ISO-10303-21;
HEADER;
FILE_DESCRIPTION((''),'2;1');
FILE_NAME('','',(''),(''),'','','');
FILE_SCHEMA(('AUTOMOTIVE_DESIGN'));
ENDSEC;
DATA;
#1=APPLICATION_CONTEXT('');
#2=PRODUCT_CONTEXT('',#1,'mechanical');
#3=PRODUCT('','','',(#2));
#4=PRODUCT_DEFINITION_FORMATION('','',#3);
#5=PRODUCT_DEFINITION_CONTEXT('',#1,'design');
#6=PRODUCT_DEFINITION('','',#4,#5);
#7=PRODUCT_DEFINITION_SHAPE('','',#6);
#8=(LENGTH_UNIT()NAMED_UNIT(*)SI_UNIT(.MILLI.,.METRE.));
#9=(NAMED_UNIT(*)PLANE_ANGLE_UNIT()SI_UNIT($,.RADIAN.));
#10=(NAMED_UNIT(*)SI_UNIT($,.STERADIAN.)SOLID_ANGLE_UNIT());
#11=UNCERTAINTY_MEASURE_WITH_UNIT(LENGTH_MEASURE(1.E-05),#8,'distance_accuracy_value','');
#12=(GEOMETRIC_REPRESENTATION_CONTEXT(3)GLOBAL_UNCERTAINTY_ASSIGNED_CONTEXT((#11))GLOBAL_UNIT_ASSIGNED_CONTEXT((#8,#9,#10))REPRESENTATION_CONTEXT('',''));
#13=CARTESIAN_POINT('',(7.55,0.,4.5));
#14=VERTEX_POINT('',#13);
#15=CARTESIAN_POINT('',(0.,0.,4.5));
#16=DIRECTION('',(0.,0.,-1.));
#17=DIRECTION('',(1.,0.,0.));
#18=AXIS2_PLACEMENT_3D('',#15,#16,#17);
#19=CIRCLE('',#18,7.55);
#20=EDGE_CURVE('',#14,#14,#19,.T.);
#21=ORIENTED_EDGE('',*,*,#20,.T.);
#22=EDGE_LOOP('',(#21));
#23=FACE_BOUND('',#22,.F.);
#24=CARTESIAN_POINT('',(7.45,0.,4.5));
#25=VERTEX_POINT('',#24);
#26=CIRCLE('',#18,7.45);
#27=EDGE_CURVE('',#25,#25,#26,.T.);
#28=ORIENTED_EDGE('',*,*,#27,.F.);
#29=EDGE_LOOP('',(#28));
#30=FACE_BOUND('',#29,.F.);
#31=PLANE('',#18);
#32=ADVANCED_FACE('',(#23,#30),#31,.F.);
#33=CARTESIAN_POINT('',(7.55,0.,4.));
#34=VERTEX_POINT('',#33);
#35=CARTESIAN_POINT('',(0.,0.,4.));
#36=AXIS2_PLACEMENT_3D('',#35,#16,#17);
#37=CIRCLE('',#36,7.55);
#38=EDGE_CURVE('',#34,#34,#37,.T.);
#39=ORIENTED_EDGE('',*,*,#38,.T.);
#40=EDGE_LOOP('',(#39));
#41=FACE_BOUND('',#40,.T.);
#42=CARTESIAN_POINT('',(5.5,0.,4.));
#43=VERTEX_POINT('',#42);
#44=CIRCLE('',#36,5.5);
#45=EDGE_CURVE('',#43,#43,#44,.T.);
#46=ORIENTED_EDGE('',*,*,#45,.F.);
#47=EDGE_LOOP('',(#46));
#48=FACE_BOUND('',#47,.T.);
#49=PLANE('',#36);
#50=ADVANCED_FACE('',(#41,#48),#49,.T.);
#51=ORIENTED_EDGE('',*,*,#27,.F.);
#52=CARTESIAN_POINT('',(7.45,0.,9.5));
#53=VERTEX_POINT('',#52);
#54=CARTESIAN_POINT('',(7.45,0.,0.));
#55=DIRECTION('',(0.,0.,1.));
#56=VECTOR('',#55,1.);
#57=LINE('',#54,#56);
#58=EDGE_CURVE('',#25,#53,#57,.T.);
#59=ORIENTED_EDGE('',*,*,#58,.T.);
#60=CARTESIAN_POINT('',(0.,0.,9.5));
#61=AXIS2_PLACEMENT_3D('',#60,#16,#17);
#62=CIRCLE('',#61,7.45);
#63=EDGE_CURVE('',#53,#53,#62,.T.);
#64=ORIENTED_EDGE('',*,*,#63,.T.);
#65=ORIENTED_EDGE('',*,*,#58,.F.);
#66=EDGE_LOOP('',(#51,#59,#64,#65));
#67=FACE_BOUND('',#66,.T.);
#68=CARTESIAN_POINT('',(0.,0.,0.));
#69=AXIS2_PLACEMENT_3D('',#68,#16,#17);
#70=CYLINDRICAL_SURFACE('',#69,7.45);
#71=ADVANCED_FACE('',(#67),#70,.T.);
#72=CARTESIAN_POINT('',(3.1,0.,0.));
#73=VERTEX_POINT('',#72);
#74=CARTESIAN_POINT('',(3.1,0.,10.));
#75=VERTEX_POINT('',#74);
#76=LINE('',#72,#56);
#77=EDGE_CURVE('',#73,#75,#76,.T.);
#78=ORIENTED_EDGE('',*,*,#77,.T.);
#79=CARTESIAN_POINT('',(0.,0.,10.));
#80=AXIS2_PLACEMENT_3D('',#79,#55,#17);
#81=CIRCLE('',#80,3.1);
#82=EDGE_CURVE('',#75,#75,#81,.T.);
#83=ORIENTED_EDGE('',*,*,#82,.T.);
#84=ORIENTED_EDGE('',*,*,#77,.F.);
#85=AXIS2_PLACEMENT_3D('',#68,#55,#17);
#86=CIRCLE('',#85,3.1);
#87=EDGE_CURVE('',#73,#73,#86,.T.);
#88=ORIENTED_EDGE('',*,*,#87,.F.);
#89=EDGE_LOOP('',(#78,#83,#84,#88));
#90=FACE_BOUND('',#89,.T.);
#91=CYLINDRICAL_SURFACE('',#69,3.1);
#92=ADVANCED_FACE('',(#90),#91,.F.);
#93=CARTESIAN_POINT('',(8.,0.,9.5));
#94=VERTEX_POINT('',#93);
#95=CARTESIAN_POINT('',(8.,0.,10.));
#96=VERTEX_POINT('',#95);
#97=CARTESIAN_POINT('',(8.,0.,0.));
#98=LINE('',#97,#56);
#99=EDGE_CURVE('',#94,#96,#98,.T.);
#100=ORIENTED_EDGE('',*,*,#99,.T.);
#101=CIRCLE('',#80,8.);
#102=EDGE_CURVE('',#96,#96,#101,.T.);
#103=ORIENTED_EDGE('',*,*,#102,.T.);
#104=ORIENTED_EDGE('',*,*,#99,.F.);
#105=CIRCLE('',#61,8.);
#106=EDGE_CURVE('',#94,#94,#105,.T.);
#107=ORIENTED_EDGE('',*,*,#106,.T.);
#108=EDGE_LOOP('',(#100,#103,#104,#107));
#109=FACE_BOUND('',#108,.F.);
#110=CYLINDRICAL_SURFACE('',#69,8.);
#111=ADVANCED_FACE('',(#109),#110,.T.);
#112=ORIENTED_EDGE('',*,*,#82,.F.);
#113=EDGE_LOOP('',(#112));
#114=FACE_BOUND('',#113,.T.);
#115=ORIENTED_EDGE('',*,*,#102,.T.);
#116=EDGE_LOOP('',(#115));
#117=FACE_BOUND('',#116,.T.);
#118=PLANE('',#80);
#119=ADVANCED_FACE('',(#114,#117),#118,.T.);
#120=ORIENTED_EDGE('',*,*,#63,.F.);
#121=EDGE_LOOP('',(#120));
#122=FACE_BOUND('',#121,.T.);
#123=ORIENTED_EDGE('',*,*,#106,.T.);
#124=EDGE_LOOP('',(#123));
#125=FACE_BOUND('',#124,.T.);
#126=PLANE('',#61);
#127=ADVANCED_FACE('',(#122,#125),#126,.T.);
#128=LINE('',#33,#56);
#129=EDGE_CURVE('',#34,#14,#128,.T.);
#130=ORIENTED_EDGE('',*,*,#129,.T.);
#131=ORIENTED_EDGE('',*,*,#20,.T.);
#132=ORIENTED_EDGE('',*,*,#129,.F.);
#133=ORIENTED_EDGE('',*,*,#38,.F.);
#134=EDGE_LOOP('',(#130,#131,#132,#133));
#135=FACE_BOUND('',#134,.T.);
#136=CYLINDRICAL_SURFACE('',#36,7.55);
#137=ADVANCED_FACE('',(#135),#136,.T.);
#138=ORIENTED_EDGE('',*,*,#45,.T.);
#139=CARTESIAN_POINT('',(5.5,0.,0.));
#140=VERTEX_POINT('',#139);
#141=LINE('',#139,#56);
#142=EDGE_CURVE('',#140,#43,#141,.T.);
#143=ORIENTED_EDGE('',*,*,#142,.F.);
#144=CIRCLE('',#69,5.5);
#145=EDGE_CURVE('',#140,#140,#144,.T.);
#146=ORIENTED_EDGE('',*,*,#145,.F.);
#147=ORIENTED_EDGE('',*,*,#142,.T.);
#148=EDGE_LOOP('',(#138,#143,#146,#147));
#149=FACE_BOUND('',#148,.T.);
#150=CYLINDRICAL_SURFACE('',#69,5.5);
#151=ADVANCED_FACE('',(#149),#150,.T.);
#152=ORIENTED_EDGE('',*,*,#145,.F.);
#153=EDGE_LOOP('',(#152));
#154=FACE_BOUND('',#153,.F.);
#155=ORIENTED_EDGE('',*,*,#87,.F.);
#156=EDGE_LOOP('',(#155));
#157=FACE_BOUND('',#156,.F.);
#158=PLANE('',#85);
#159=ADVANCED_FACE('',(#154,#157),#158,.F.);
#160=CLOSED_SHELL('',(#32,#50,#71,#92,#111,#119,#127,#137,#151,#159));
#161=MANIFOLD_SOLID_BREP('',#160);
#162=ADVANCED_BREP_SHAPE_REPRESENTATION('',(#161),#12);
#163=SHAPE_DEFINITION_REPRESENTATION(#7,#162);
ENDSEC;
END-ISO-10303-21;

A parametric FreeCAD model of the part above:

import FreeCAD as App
import Part
import Sketcher
from FreeCAD import Vector
Q = App.Units.Quantity

doc = App.newDocument("Part")
body = doc.addObject("PartDesign::Body", "Body")

# Sketch on XY plane
sketch1 = doc.addObject("Sketcher::SketchObject", "Sketch")
body.addObject(sketch1)
sketch1.AttachmentSupport = (doc.XY_Plane, [""])
sketch1.MapMode = "FlatFace"
sketch1.addGeometry([
    Part.Circle(Vector(0, 0, 0), Vector(0, 0, 1), 8),
    Part.Circle(Vector(0, 0, 0), Vector(0, 0, 1), 3.1),
], False)
sketch1.addConstraint([
    Sketcher.Constraint("Coincident", 0, 3, -1, 1),
    Sketcher.Constraint("Coincident", 1, 3, -1, 1),
    Sketcher.Constraint("Diameter", 0, Q("16 mm")),
    Sketcher.Constraint("Diameter", 1, Q("6.2 mm")),
])
pad1 = doc.addObject("PartDesign::Pad", "Pad")
body.addObject(pad1)
pad1.Profile = sketch1
pad1.Length = 10

# Sketch on XY plane
sketch2 = doc.addObject("Sketcher::SketchObject", "Sketch001")
body.addObject(sketch2)
sketch2.AttachmentSupport = (doc.XY_Plane, [""])
sketch2.MapMode = "FlatFace"
sketch2.addGeometry([
    Part.Circle(Vector(0, 0, 0), Vector(0, 0, 1), 15.500543),
    Part.Circle(Vector(0, 0, 0), Vector(0, 0, 1), 7.45),
], False)
sketch2.addConstraint([
    Sketcher.Constraint("Coincident", 0, 3, -1, 1),
    Sketcher.Constraint("Coincident", 1, 3, -1, 1),
    Sketcher.Constraint("Diameter", 1, Q("14.9 mm")),
    Sketcher.Constraint("Diameter", 0, Q("31.001086 mm")),
])
pocket1 = doc.addObject("PartDesign::Pocket", "Pocket")
body.addObject(pocket1)
pocket1.Profile = sketch2
pocket1.Length = 9.5
pocket1.Reversed = True

# Sketch on XY plane
sketch3 = doc.addObject("Sketcher::SketchObject", "Sketch002")
body.addObject(sketch3)
sketch3.AttachmentSupport = (doc.XY_Plane, [""])
sketch3.MapMode = "FlatFace"
sketch3.addGeometry([
    Part.Circle(Vector(0, 0, 0), Vector(0, 0, 1), 11.210936),
    Part.Circle(Vector(0, 0, 0), Vector(0, 0, 1), 5.5),
], False)
sketch3.addConstraint([
    Sketcher.Constraint("Coincident", 0, 3, -1, 1),
    Sketcher.Constraint("Coincident", 1, 3, -1, 1),
    Sketcher.Constraint("Diameter", 1, Q("11 mm")),
    Sketcher.Constraint("Diameter", 0, Q("22.421872 mm")),
])
pocket2 = doc.addObject("PartDesign::Pocket", "Pocket001")
body.addObject(pocket2)
pocket2.Profile = sketch3
pocket2.Length = 4
pocket2.Reversed = True

# Sketch on XY plane
sketch4 = doc.addObject("Sketcher::SketchObject", "Sketch003")
body.addObject(sketch4)
sketch4.AttachmentSupport = (doc.XY_Plane, [""])
sketch4.MapMode = "FlatFace"
sketch4.AttachmentOffset = App.Placement(Vector(0, 0, 4), App.Rotation())
sketch4.addGeometry([
    Part.Circle(Vector(0, 0, 0), Vector(0, 0, 1), 7.55),
    Part.Circle(Vector(0, 0, 0), Vector(0, 0, 1), 6.749921),
], False)
sketch4.addConstraint([
    Sketcher.Constraint("Coincident", 0, 3, -1, 1),
    Sketcher.Constraint("Coincident", 1, 3, -1, 1),
    Sketcher.Constraint("Diameter", 0, Q("15.1 mm")),
    Sketcher.Constraint("Diameter", 1, Q("13.499842 mm")),
])
pad2 = doc.addObject("PartDesign::Pad", "Pad001")
body.addObject(pad2)
pad2.Profile = sketch4
pad2.Length = 0.5

doc.recompute()
